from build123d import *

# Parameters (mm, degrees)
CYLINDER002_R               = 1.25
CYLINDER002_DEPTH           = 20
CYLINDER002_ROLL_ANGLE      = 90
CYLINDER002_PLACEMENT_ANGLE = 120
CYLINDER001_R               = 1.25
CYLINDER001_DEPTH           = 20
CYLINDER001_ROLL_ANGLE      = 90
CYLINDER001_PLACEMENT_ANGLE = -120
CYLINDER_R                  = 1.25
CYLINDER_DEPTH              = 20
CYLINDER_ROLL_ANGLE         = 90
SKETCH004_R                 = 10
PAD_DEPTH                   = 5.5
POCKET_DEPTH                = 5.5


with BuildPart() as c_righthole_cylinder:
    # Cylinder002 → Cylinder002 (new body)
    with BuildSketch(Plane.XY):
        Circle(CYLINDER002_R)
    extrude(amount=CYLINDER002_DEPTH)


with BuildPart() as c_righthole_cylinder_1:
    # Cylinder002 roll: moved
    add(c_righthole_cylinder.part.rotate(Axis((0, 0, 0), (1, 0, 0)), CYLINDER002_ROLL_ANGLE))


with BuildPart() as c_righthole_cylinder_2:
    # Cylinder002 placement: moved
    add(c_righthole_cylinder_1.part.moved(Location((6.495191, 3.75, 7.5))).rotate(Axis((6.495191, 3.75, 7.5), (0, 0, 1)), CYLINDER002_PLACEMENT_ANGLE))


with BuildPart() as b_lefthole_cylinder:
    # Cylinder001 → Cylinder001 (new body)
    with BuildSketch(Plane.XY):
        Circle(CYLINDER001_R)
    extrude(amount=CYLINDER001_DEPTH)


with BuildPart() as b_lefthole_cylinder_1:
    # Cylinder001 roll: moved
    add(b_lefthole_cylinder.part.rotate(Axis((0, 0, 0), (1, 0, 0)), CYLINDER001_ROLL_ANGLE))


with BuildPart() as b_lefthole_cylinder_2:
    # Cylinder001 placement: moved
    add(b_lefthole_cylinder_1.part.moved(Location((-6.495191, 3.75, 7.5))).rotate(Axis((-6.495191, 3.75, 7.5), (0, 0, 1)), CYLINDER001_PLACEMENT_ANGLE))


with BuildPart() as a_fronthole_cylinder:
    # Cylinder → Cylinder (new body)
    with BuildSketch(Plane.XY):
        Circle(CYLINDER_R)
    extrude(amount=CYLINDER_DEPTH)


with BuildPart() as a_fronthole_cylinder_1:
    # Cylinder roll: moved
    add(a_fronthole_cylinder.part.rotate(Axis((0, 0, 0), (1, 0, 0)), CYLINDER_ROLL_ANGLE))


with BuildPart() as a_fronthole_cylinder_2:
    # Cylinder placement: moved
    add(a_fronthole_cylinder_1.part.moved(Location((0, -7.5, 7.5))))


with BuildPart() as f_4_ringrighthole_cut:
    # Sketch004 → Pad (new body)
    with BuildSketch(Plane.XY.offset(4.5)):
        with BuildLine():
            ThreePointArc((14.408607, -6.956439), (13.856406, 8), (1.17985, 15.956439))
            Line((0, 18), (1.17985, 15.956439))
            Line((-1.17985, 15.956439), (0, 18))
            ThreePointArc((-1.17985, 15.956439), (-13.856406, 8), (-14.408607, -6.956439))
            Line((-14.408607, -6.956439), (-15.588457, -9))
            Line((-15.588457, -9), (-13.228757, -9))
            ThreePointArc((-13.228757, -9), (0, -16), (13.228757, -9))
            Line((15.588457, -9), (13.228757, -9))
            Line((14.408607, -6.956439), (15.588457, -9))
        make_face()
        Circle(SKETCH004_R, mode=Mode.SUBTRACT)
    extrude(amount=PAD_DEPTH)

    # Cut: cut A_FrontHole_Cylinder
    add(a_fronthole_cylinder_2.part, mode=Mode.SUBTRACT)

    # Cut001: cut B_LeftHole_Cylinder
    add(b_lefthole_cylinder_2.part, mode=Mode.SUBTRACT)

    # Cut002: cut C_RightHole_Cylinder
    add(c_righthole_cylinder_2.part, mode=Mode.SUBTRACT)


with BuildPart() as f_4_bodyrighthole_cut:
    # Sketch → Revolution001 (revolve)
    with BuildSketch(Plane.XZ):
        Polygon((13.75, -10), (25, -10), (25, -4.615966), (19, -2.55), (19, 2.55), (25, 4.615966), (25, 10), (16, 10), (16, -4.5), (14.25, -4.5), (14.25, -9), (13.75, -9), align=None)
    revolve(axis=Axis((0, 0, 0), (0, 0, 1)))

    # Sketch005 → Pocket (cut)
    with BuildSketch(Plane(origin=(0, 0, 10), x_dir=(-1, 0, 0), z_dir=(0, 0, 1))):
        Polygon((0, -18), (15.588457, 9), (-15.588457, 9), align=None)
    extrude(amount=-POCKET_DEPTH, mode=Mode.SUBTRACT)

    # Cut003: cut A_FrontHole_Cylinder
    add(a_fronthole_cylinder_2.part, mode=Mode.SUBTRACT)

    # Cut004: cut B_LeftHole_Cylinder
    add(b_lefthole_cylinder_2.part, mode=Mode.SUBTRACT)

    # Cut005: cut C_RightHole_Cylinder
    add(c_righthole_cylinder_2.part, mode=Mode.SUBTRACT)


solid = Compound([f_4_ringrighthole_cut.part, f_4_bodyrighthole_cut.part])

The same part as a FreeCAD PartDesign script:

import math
import FreeCAD as App
import Part
import Sketcher

V = App.Vector
Q = App.Units.Quantity

doc = App.newDocument("Part")
params = doc.addObject("Spreadsheet::Sheet", "Params")
for row, (alias, value) in enumerate([
    ("sketch1_diameter", "2.5 mm"),
    ("pad1_length", "20 mm"),
    ("sketch2_diameter", "2.5 mm"),
    ("pad2_length", "20 mm"),
    ("sketch3_diameter", "2.5 mm"),
    ("pad3_length", "20 mm"),
    ("sketch4_diameter", "20 mm"),
    ("sketch4_radius", "16 mm"),
    ("pad4_length", "5.5 mm"),
    ("sketch5_width", "9 mm"),
    ("sketch5_height", "1 mm"),
    ("sketch5_width2", "0.5 mm"),
    ("sketch5_height2", "5.1 mm"),
    ("sketch5_height3", "14.5 mm"),
    ("revolution_angle", "360 deg"),
    ("pocket1_length", "5.5 mm"),
], start=1):
    params.set(f"A{row}", alias)
    params.set(f"B{row}", "=" + value)
    params.setAlias(f"B{row}", alias)

body = doc.addObject("PartDesign::Body", "Body")

sketch1 = doc.addObject("Sketcher::SketchObject", "Sketch")
body.addObject(sketch1)
sketch1.AttachmentSupport = (doc.XY_Plane, [""])
sketch1.MapMode = "FlatFace"
sketch1.addGeometry(Part.Circle(V(0, 0, 0), V(0, 0, 1), 1.25), False)
sketch1.addConstraint(Sketcher.Constraint("Coincident", 0, 3, -1, 1))
sketch1.addConstraint(Sketcher.Constraint("Diameter", 0, Q("2.5 mm")))
sketch1.setExpression("Constraints[1]", "Params.sketch1_diameter")
pad1 = doc.addObject("PartDesign::Pad", "Pad")
body.addObject(pad1)
pad1.Profile = sketch1
pad1.setExpression("Length", "Params.pad1_length")
body2 = doc.addObject("PartDesign::Body", "Body001")
doc.recompute()

body.Placement = App.Placement(V(0, 0, 0), App.Rotation(V(1, 0, 0), 90))
boolean = doc.addObject("PartDesign::Boolean", "Boolean")
body2.addObject(boolean)
boolean.Type = "Fuse"
boolean.addObjects([body])
body3 = doc.addObject("PartDesign::Body", "Body002")
doc.recompute()

body2.Placement = App.Placement(V(6.495191, 3.75, 7.5), App.Rotation(V(0, 0, 1), 120))
boolean2 = doc.addObject("PartDesign::Boolean", "Boolean001")
body3.addObject(boolean2)
boolean2.Type = "Fuse"
boolean2.addObjects([body2])
body4 = doc.addObject("PartDesign::Body", "Body003")

sketch2 = doc.addObject("Sketcher::SketchObject", "Sketch001")
body4.addObject(sketch2)
sketch2.AttachmentSupport = (doc.getObject("XY_Plane003"), [""])
sketch2.MapMode = "FlatFace"
sketch2.addGeometry(Part.Circle(V(0, 0, 0), V(0, 0, 1), 1.25), False)
sketch2.addConstraint(Sketcher.Constraint("Coincident", 0, 3, -1, 1))
sketch2.addConstraint(Sketcher.Constraint("Diameter", 0, Q("2.5 mm")))
sketch2.setExpression("Constraints[1]", "Params.sketch2_diameter")
pad2 = doc.addObject("PartDesign::Pad", "Pad001")
body4.addObject(pad2)
pad2.Profile = sketch2
pad2.setExpression("Length", "Params.pad2_length")
body5 = doc.addObject("PartDesign::Body", "Body004")
doc.recompute()

body4.Placement = App.Placement(V(0, 0, 0), App.Rotation(V(1, 0, 0), 90))
boolean3 = doc.addObject("PartDesign::Boolean", "Boolean002")
body5.addObject(boolean3)
boolean3.Type = "Fuse"
boolean3.addObjects([body4])
body6 = doc.addObject("PartDesign::Body", "Body005")
doc.recompute()

body5.Placement = App.Placement(V(-6.495191, 3.75, 7.5), App.Rotation(V(0, 0, 1), 240))
boolean4 = doc.addObject("PartDesign::Boolean", "Boolean003")
body6.addObject(boolean4)
boolean4.Type = "Fuse"
boolean4.addObjects([body5])
body7 = doc.addObject("PartDesign::Body", "Body006")

sketch3 = doc.addObject("Sketcher::SketchObject", "Sketch002")
body7.addObject(sketch3)
sketch3.AttachmentSupport = (doc.getObject("XY_Plane006"), [""])
sketch3.MapMode = "FlatFace"
sketch3.addGeometry(Part.Circle(V(0, 0, 0), V(0, 0, 1), 1.25), False)
sketch3.addConstraint(Sketcher.Constraint("Coincident", 0, 3, -1, 1))
sketch3.addConstraint(Sketcher.Constraint("Diameter", 0, Q("2.5 mm")))
sketch3.setExpression("Constraints[1]", "Params.sketch3_diameter")
pad3 = doc.addObject("PartDesign::Pad", "Pad002")
body7.addObject(pad3)
pad3.Profile = sketch3
pad3.setExpression("Length", "Params.pad3_length")
body8 = doc.addObject("PartDesign::Body", "Body007")
doc.recompute()

body7.Placement = App.Placement(V(0, 0, 0), App.Rotation(V(1, 0, 0), 90))
boolean5 = doc.addObject("PartDesign::Boolean", "Boolean004")
body8.addObject(boolean5)
boolean5.Type = "Fuse"
boolean5.addObjects([body7])
body9 = doc.addObject("PartDesign::Body", "Body008")
doc.recompute()

body8.Placement = App.Placement(V(0, -7.5, 7.5), App.Rotation(V(0, 0, 1), 0))
boolean6 = doc.addObject("PartDesign::Boolean", "Boolean005")
body9.addObject(boolean6)
boolean6.Type = "Fuse"
boolean6.addObjects([body8])
body10 = doc.addObject("PartDesign::Body", "Body009")

sketch4 = doc.addObject("Sketcher::SketchObject", "Sketch003")
body10.addObject(sketch4)
sketch4.AttachmentSupport = (doc.getObject("XY_Plane009"), [""])
sketch4.MapMode = "FlatFace"
sketch4.AttachmentOffset = App.Placement(V(0, 0, 4.5), App.Rotation())
sketch4.addGeometry(Part.ArcOfCircle(Part.Circle(V(0, 0, 0), V(0, 0, 1), 16), math.radians(-25.771131), math.radians(85.771133)), False)
sketch4.addGeometry(Part.LineSegment(V(1.17985, 15.956439, 0), V(0, 18, 0)), False)
sketch4.addGeometry(Part.LineSegment(V(0, 18, 0), V(-1.17985, 15.956439, 0)), False)
sketch4.addGeometry(Part.ArcOfCircle(Part.Circle(V(0, 0, 0), V(0, 0, 1), 16), math.radians(94.228867), math.radians(205.771131)), False)
sketch4.addGeometry(Part.LineSegment(V(-14.408607, -6.956439, 0), V(-15.588457, -9, 0)), False)
sketch4.addGeometry(Part.LineSegment(V(-15.588457, -9, 0), V(-13.228757, -9, 0)), False)
sketch4.addGeometry(Part.ArcOfCircle(Part.Circle(V(0, 0.000001, 0), V(0, 0, 1), 16.000001), math.radians(-145.771132), math.radians(-34.228868)), False)
sketch4.addGeometry(Part.LineSegment(V(13.228757, -9, 0), V(15.588457, -9, 0)), False)
sketch4.addGeometry(Part.LineSegment(V(15.588457, -9, 0), V(14.408607, -6.956439, 0)), False)
sketch4.addGeometry(Part.Circle(V(0, 0, 0), V(0, 0, 1), 10), False)
sketch4.addConstraint(Sketcher.Constraint("Coincident", 0, 2, 1, 1))
sketch4.addConstraint(Sketcher.Constraint("Coincident", 1, 2, 2, 1))
sketch4.addConstraint(Sketcher.Constraint("Coincident", 2, 2, 3, 1))
sketch4.addConstraint(Sketcher.Constraint("Coincident", 3, 2, 4, 1))
sketch4.addConstraint(Sketcher.Constraint("Coincident", 4, 2, 5, 1))
sketch4.addConstraint(Sketcher.Constraint("Coincident", 5, 2, 6, 1))
sketch4.addConstraint(Sketcher.Constraint("Coincident", 6, 2, 7, 1))
sketch4.addConstraint(Sketcher.Constraint("Coincident", 7, 2, 8, 1))
sketch4.addConstraint(Sketcher.Constraint("Coincident", 8, 2, 0, 1))
sketch4.addConstraint(Sketcher.Constraint("Horizontal", 5))
sketch4.addConstraint(Sketcher.Constraint("Horizontal", 7))
sketch4.addConstraint(Sketcher.Constraint("Coincident", 0, 3, -1, 1))
sketch4.addConstraint(Sketcher.Constraint("Coincident", 3, 3, -1, 1))
sketch4.addConstraint(Sketcher.Constraint("Coincident", 6, 3, -1, 1))
sketch4.addConstraint(Sketcher.Constraint("Coincident", 9, 3, -1, 1))
sketch4.addConstraint(Sketcher.Constraint("Equal", 0, 3))
sketch4.addConstraint(Sketcher.Constraint("Equal", 3, 6))
sketch4.addConstraint(Sketcher.Constraint("Symmetric", 4, 2, 7, 2, -2))
sketch4.addConstraint(Sketcher.Constraint("PointOnObject", 1, 2, -2))
sketch4.addConstraint(Sketcher.Constraint("Parallel", 2, 4))
sketch4.addConstraint(Sketcher.Constraint("Parallel", 1, 8))
sketch4.addConstraint(Sketcher.Constraint("Horizontal", 0, 2, 2, 2))
sketch4.addConstraint(Sketcher.Constraint("Equal", 2, 4))
sketch4.addConstraint(Sketcher.Constraint("Diameter", 9, Q("20 mm")))
sketch4.addConstraint(Sketcher.Constraint("Radius", 0, Q("16 mm")))
sketch4.addConstraint(Sketcher.Constraint("Angle", 1, Q("119.99999 deg")))
sketch4.addConstraint(Sketcher.Constraint("DistanceY", -1, 1, 1, 2, Q("18 mm")))
sketch4.addConstraint(Sketcher.Constraint("DistanceY", 4, 2, -1, 1, Q("9 mm")))
sketch4.setExpression("Constraints[23]", "Params.sketch4_diameter")
sketch4.setExpression("Constraints[24]", "Params.sketch4_radius")
pad4 = doc.addObject("PartDesign::Pad", "Pad003")
body10.addObject(pad4)
pad4.Profile = sketch4
pad4.setExpression("Length", "Params.pad4_length")
doc.recompute()

body11 = doc.addObject("PartDesign::Body", "Body010")
body11.BaseFeature = body9
boolean7 = doc.addObject("PartDesign::Boolean", "Boolean006")
body10.addObject(boolean7)
boolean7.Type = "Cut"
boolean7.addObjects([body11])
doc.recompute()

body12 = doc.addObject("PartDesign::Body", "Body011")
body12.BaseFeature = body6
boolean8 = doc.addObject("PartDesign::Boolean", "Boolean007")
body10.addObject(boolean8)
boolean8.Type = "Cut"
boolean8.addObjects([body12])
doc.recompute()

body13 = doc.addObject("PartDesign::Body", "Body012")
body13.BaseFeature = body3
boolean9 = doc.addObject("PartDesign::Boolean", "Boolean008")
body10.addObject(boolean9)
boolean9.Type = "Cut"
boolean9.addObjects([body13])
doc.recompute()
body14 = doc.addObject("PartDesign::Body", "Body013")

sketch5 = doc.addObject("Sketcher::SketchObject", "Sketch004")
body14.addObject(sketch5)
sketch5.AttachmentSupport = (doc.getObject("XZ_Plane013"), [""])
sketch5.MapMode = "FlatFace"
sketch5.addGeometry(Part.LineSegment(V(13.75, -10, 0), V(25, -10, 0)), False)
sketch5.addGeometry(Part.LineSegment(V(25, -10, 0), V(25, -4.615966, 0)), False)
sketch5.addGeometry(Part.LineSegment(V(25, -4.615966, 0), V(19, -2.55, 0)), False)
sketch5.addGeometry(Part.LineSegment(V(19, -2.55, 0), V(19, 2.55, 0)), False)
sketch5.addGeometry(Part.LineSegment(V(19, 2.55, 0), V(25, 4.615966, 0)), False)
sketch5.addGeometry(Part.LineSegment(V(25, 4.615966, 0), V(25, 10, 0)), False)
sketch5.addGeometry(Part.LineSegment(V(25, 10, 0), V(16, 10, 0)), False)
sketch5.addGeometry(Part.LineSegment(V(16, 10, 0), V(16, -4.5, 0)), False)
sketch5.addGeometry(Part.LineSegment(V(16, -4.5, 0), V(14.25, -4.5, 0)), False)
sketch5.addGeometry(Part.LineSegment(V(14.25, -4.5, 0), V(14.25, -9, 0)), False)
sketch5.addGeometry(Part.LineSegment(V(14.25, -9, 0), V(13.75, -9, 0)), False)
sketch5.addGeometry(Part.LineSegment(V(13.75, -9, 0), V(13.75, -10, 0)), False)
sketch5.addConstraint(Sketcher.Constraint("Coincident", 0, 2, 1, 1))
sketch5.addConstraint(Sketcher.Constraint("Coincident", 1, 2, 2, 1))
sketch5.addConstraint(Sketcher.Constraint("Coincident", 2, 2, 3, 1))
sketch5.addConstraint(Sketcher.Constraint("Coincident", 3, 2, 4, 1))
sketch5.addConstraint(Sketcher.Constraint("Coincident", 4, 2, 5, 1))
sketch5.addConstraint(Sketcher.Constraint("Coincident", 5, 2, 6, 1))
sketch5.addConstraint(Sketcher.Constraint("Coincident", 6, 2, 7, 1))
sketch5.addConstraint(Sketcher.Constraint("Coincident", 7, 2, 8, 1))
sketch5.addConstraint(Sketcher.Constraint("Coincident", 8, 2, 9, 1))
sketch5.addConstraint(Sketcher.Constraint("Coincident", 9, 2, 10, 1))
sketch5.addConstraint(Sketcher.Constraint("Coincident", 10, 2, 11, 1))
sketch5.addConstraint(Sketcher.Constraint("Coincident", 11, 2, 0, 1))
sketch5.addConstraint(Sketcher.Constraint("Horizontal", 0))
sketch5.addConstraint(Sketcher.Constraint("Vertical", 1))
sketch5.addConstraint(Sketcher.Constraint("Vertical", 3))
sketch5.addConstraint(Sketcher.Constraint("Vertical", 5))
sketch5.addConstraint(Sketcher.Constraint("Horizontal", 6))
sketch5.addConstraint(Sketcher.Constraint("Vertical", 7))
sketch5.addConstraint(Sketcher.Constraint("Horizontal", 8))
sketch5.addConstraint(Sketcher.Constraint("Vertical", 9))
sketch5.addConstraint(Sketcher.Constraint("Horizontal", 10))
sketch5.addConstraint(Sketcher.Constraint("Vertical", 11))
sketch5.addConstraint(Sketcher.Constraint("Symmetric", 1, 2, 4, 2, -1))
sketch5.addConstraint(Sketcher.Constraint("Equal", 1, 5))
sketch5.addConstraint(Sketcher.Constraint("Equal", 2, 4))
sketch5.addConstraint(Sketcher.Constraint("DistanceX", 6, 2, 6, 1, Q("9 mm")))
sketch5.addConstraint(Sketcher.Constraint("DistanceY", 11, 2, 11, 1, Q("1 mm")))
sketch5.addConstraint(Sketcher.Constraint("Angle", 2, Q("160.999997 deg")))
sketch5.addConstraint(Sketcher.Constraint("DistanceX", 10, 2, 10, 1, Q("0.5 mm")))
sketch5.addConstraint(Sketcher.Constraint("DistanceY", 3, 1, 3, 2, Q("5.1 mm")))
sketch5.addConstraint(Sketcher.Constraint("DistanceY", 7, 2, 7, 1, Q("14.5 mm")))
sketch5.addConstraint(Sketcher.Constraint("DistanceY", 9, 2, 9, 1, Q("4.5 mm")))
sketch5.addConstraint(Sketcher.Constraint("DistanceX", -1, 1, 0, 2, Q("25 mm")))
sketch5.addConstraint(Sketcher.Constraint("DistanceX", -1, 1, 2, 2, Q("19 mm")))
sketch5.addConstraint(Sketcher.Constraint("DistanceX", 0, 1, 0, 2, Q("11.25 mm")))
sketch5.setExpression("Constraints[25]", "Params.sketch5_width")
sketch5.setExpression("Constraints[26]", "Params.sketch5_height")
sketch5.setExpression("Constraints[28]", "Params.sketch5_width2")
sketch5.setExpression("Constraints[29]", "Params.sketch5_height2")
sketch5.setExpression("Constraints[30]", "Params.sketch5_height3")
revolution = doc.addObject("PartDesign::Revolution", "Revolution")
body14.addObject(revolution)
revolution.Profile = sketch5
revolution.ReferenceAxis = (sketch5, ["V_Axis"])
revolution.setExpression("Angle", "Params.revolution_angle")

sketch6 = doc.addObject("Sketcher::SketchObject", "Sketch005")
body14.addObject(sketch6)
sketch6.AttachmentSupport = (doc.getObject("XY_Plane013"), [""])
sketch6.MapMode = "FlatFace"
sketch6.AttachmentOffset = App.Placement(V(0, 0, 10), App.Rotation())
sketch6.addGeometry(Part.LineSegment(V(0, 18, 0), V(-15.588457, -9, 0)), False)
sketch6.addGeometry(Part.LineSegment(V(-15.588457, -9, 0), V(15.588457, -9, 0)), False)
sketch6.addGeometry(Part.LineSegment(V(15.588457, -9, 0), V(0, 18, 0)), False)
sketch6.addConstraint(Sketcher.Constraint("Coincident", 0, 2, 1, 1))
sketch6.addConstraint(Sketcher.Constraint("Coincident", 1, 2, 2, 1))
sketch6.addConstraint(Sketcher.Constraint("Coincident", 2, 2, 0, 1))
sketch6.addConstraint(Sketcher.Constraint("Horizontal", 1))
sketch6.addConstraint(Sketcher.Constraint("PointOnObject", 2, 2, -2))
sketch6.addConstraint(Sketcher.Constraint("Equal", 0, 2))
sketch6.addConstraint(Sketcher.Constraint("Angle", 0, Q("-120 deg")))
sketch6.addConstraint(Sketcher.Constraint("DistanceY", 0, 2, -1, 1, Q("9 mm")))
sketch6.addConstraint(Sketcher.Constraint("DistanceY", -1, 1, 2, 2, Q("18 mm")))
pocket1 = doc.addObject("PartDesign::Pocket", "Pocket")
body14.addObject(pocket1)
pocket1.Profile = sketch6
pocket1.setExpression("Length", "Params.pocket1_length")
doc.recompute()

boolean10 = doc.addObject("PartDesign::Boolean", "Boolean009")
body14.addObject(boolean10)
boolean10.Type = "Cut"
boolean10.addObjects([body9])
doc.recompute()

boolean11 = doc.addObject("PartDesign::Boolean", "Boolean010")
body14.addObject(boolean11)
boolean11.Type = "Cut"
boolean11.addObjects([body6])
doc.recompute()

boolean12 = doc.addObject("PartDesign::Boolean", "Boolean011")
body14.addObject(boolean12)
boolean12.Type = "Cut"
boolean12.addObjects([body3])

doc.recompute()
